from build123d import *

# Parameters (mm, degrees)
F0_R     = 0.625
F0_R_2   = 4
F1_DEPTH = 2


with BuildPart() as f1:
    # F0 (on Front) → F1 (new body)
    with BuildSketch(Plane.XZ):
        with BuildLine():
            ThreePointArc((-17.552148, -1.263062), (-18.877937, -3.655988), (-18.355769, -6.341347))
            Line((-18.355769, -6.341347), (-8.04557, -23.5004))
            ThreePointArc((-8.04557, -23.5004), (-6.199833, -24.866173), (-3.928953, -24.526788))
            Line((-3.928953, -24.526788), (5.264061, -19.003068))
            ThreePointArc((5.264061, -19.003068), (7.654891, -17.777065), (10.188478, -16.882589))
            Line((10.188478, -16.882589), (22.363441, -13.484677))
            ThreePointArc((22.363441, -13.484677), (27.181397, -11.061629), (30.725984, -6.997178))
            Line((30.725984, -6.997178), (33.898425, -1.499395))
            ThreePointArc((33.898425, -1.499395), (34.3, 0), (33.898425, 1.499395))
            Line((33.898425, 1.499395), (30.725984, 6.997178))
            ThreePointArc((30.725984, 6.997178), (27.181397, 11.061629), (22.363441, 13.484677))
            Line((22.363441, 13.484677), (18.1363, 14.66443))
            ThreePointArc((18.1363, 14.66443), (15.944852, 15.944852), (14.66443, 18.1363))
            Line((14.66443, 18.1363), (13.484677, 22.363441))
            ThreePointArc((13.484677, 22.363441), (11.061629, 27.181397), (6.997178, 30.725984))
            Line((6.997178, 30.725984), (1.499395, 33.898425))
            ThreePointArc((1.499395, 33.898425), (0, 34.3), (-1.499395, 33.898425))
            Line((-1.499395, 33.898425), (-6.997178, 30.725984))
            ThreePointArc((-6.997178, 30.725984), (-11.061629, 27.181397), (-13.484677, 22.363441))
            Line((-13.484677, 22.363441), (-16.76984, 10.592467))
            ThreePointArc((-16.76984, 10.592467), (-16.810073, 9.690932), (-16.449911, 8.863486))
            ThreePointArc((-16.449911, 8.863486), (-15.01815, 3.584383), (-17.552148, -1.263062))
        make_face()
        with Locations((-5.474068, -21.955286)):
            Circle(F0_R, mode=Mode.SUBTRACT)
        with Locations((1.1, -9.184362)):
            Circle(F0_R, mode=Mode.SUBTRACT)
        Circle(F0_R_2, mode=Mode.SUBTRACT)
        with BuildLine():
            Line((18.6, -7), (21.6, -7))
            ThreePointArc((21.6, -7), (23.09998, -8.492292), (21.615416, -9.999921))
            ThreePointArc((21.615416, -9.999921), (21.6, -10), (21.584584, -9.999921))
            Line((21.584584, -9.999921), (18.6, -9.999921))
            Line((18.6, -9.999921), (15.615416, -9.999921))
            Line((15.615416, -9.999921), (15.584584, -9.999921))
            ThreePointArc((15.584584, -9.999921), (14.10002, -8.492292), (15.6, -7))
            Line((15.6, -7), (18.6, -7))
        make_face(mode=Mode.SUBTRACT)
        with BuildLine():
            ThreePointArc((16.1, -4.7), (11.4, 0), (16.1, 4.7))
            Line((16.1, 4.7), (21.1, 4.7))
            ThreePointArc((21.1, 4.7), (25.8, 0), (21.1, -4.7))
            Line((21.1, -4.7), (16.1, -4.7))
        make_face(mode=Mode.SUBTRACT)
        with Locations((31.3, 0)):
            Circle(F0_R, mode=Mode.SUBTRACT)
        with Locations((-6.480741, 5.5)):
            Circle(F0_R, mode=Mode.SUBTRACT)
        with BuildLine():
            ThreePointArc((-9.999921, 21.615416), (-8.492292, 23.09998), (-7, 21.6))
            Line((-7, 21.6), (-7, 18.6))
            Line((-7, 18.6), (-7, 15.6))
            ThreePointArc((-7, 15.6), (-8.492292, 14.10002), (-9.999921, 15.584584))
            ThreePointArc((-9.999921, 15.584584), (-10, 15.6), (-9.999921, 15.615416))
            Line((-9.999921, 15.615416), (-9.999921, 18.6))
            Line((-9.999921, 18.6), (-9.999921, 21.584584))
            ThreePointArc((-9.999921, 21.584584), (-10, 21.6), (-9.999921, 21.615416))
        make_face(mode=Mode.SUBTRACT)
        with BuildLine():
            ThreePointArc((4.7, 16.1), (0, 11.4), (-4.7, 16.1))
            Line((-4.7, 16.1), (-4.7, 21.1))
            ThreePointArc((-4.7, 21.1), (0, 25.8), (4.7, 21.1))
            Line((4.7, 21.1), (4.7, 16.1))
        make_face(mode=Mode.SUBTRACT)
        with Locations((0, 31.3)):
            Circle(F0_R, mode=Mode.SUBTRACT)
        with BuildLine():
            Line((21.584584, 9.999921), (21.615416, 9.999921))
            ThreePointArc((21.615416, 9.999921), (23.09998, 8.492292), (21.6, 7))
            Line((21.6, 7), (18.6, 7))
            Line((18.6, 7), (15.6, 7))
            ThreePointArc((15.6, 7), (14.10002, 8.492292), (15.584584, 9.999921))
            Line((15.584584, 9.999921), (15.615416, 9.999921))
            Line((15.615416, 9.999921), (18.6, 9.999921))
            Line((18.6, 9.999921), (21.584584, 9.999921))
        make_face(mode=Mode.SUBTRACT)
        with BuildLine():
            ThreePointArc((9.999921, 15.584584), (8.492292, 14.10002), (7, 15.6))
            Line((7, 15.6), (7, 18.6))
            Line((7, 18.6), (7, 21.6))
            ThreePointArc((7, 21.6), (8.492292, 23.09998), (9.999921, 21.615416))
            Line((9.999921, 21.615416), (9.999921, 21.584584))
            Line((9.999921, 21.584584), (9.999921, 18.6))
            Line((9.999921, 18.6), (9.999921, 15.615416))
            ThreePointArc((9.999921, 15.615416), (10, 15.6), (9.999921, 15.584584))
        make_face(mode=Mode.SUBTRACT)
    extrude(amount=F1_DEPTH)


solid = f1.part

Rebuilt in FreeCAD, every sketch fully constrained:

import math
import FreeCAD as App
import Part
import Sketcher

V = App.Vector
Q = App.Units.Quantity

doc = App.newDocument("Part")
body = doc.addObject("PartDesign::Body", "Body")

# Sketch on XZ plane
sketch1 = body.newObject("Sketcher::SketchObject", "Sketch")
sketch1.AttachmentSupport = (doc.getObject("XZ_Plane"), [""])
sketch1.MapMode = "FlatFace"
sketch1.addGeometry(Part.ArcOfCircle(Part.Circle(V(-14.927, -4.281, 0), V(0, 0, 1), 4), math.radians(131), math.radians(211)), False)
sketch1.addGeometry(Part.LineSegment(V(-18.356, -6.341, 0), V(-8.046, -23.5, 0)), False)
sketch1.addGeometry(Part.ArcOfCircle(Part.Circle(V(-5.474, -21.955, 0), V(0, 0, 1), 3), math.radians(-149), math.radians(-59)), False)
sketch1.addGeometry(Part.LineSegment(V(-3.929, -24.527, 0), V(5.264, -19.003, 0)), False)
sketch1.addGeometry(Part.ArcOfCircle(Part.Circle(V(15.565, -36.146, 0), V(0, 0, 1), 20), math.radians(105.59), math.radians(121)), False)
sketch1.addGeometry(Part.LineSegment(V(10.188, -16.883, 0), V(22.363, -13.485, 0)), False)
sketch1.addGeometry(Part.ArcOfCircle(Part.Circle(V(18.6, 0, 0), V(0, 0, 1), 14), math.radians(-74), math.radians(-30)), False)
sketch1.addGeometry(Part.LineSegment(V(30.726, -6.997, 0), V(33.898, -1.499, 0)), False)
sketch1.addGeometry(Part.ArcOfCircle(Part.Circle(V(31.3, 0, 0), V(0, 0, 1), 3), math.radians(-30), math.radians(30)), False)
sketch1.addGeometry(Part.LineSegment(V(33.898, 1.499, 0), V(30.726, 6.997, 0)), False)
sketch1.addGeometry(Part.ArcOfCircle(Part.Circle(V(18.6, 0, 0), V(0, 0, 1), 14), math.radians(30), math.radians(74)), False)
sketch1.addGeometry(Part.LineSegment(V(22.363, 13.485, 0), V(18.136, 14.664, 0)), False)
sketch1.addGeometry(Part.ArcOfCircle(Part.Circle(V(19.48, 19.48, 0), V(0, 0, 1), 5), math.radians(-164), math.radians(-106)), False)
sketch1.addGeometry(Part.LineSegment(V(14.664, 18.136, 0), V(13.485, 22.363, 0)), False)
sketch1.addGeometry(Part.ArcOfCircle(Part.Circle(V(0, 18.6, 0), V(0, 0, 1), 14), math.radians(16), math.radians(60)), False)
sketch1.addGeometry(Part.LineSegment(V(6.997, 30.726, 0), V(1.499, 33.898, 0)), False)
sketch1.addGeometry(Part.ArcOfCircle(Part.Circle(V(0, 31.3, 0), V(0, 0, 1), 3), math.radians(60), math.radians(120)), False)
sketch1.addGeometry(Part.LineSegment(V(-1.499, 33.898, 0), V(-6.997, 30.726, 0)), False)
sketch1.addGeometry(Part.ArcOfCircle(Part.Circle(V(0, 18.6, 0), V(0, 0, 1), 14), math.radians(120), math.radians(164)), False)
sketch1.addGeometry(Part.LineSegment(V(-13.485, 22.363, 0), V(-16.77, 10.592, 0)), False)
sketch1.addGeometry(Part.ArcOfCircle(Part.Circle(V(-14.843, 10.055, 0), V(0, 0, 1), 2), math.radians(164), math.radians(217)), False)
sketch1.addGeometry(Part.ArcOfCircle(Part.Circle(V(-22.474, 4.396, 0), V(0, 0, 1), 7.5), math.radians(-49), math.radians(37)), False)
sketch1.addGeometry(Part.Circle(V(-5.474, -21.955, 0), V(0, 0, 1), 0.625), False)
sketch1.addGeometry(Part.Circle(V(1.1, -9.184, 0), V(0, 0, 1), 0.625), False)
sketch1.addGeometry(Part.Circle(V(0, 0, 0), V(0, 0, 1), 4), False)
sketch1.addGeometry(Part.LineSegment(V(15.6, -7, 0), V(21.6, -7, 0)), False)
sketch1.addGeometry(Part.ArcOfCircle(Part.Circle(V(21.6, -8.5, 0), V(0, 0, 1), 1.5), math.radians(-89), math.radians(90)), False)
sketch1.addGeometry(Part.ArcOfCircle(Part.Circle(V(21.6, -8.496, 0), V(0, 0, 1), 1.504), math.radians(-90.59), math.radians(-89.41)), False)
sketch1.addGeometry(Part.LineSegment(V(21.585, -10, 0), V(15.585, -10, 0)), False)
sketch1.addGeometry(Part.ArcOfCircle(Part.Circle(V(15.6, -8.5, 0), V(0, 0, 1), 1.5), math.radians(90), math.radians(269)), False)
sketch1.addGeometry(Part.LineSegment(V(21.1, -4.7, 0), V(16.1, -4.7, 0)), False)
sketch1.addGeometry(Part.ArcOfCircle(Part.Circle(V(16.1, 0, 0), V(0, 0, 1), 4.7), math.radians(90), math.radians(270)), False)
sketch1.addGeometry(Part.LineSegment(V(16.1, 4.7, 0), V(21.1, 4.7, 0)), False)
sketch1.addGeometry(Part.ArcOfCircle(Part.Circle(V(21.1, 0, 0), V(0, 0, 1), 4.7), math.radians(-90), math.radians(90)), False)
sketch1.addGeometry(Part.Circle(V(31.3, 0, 0), V(0, 0, 1), 0.625), False)
sketch1.addGeometry(Part.Circle(V(-6.481, 5.5, 0), V(0, 0, 1), 0.625), False)
sketch1.addGeometry(Part.ArcOfCircle(Part.Circle(V(-8.496, 21.6, 0), V(0, 0, 1), 1.504), math.radians(179.41), math.radians(180.59)), False)
sketch1.addGeometry(Part.ArcOfCircle(Part.Circle(V(-8.5, 21.6, 0), V(0, 0, 1), 1.5), math.radians(0), math.radians(179)), False)
sketch1.addGeometry(Part.LineSegment(V(-7, 21.6, 0), V(-7, 15.6, 0)), False)
sketch1.addGeometry(Part.ArcOfCircle(Part.Circle(V(-8.5, 15.6, 0), V(0, 0, 1), 1.5), math.radians(-179), math.radians(0)), False)
sketch1.addGeometry(Part.ArcOfCircle(Part.Circle(V(-8.496, 15.6, 0), V(0, 0, 1), 1.504), math.radians(179.41), math.radians(180.59)), False)
sketch1.addGeometry(Part.LineSegment(V(-10, 15.615, 0), V(-10, 21.585, 0)), False)
sketch1.addGeometry(Part.LineSegment(V(4.7, 21.1, 0), V(4.7, 16.1, 0)), False)
sketch1.addGeometry(Part.ArcOfCircle(Part.Circle(V(0, 16.1, 0), V(0, 0, 1), 4.7), math.radians(180), math.radians(360)), False)
sketch1.addGeometry(Part.LineSegment(V(-4.7, 16.1, 0), V(-4.7, 21.1, 0)), False)
sketch1.addGeometry(Part.ArcOfCircle(Part.Circle(V(0, 21.1, 0), V(0, 0, 1), 4.7), math.radians(0), math.radians(180)), False)
sketch1.addGeometry(Part.Circle(V(0, 31.3, 0), V(0, 0, 1), 0.625), False)
sketch1.addGeometry(Part.ArcOfCircle(Part.Circle(V(8.496, 15.6, 0), V(0, 0, 1), 1.504), math.radians(-0.59), math.radians(0.59)), False)
sketch1.addGeometry(Part.ArcOfCircle(Part.Circle(V(8.5, 15.6, 0), V(0, 0, 1), 1.5), math.radians(-180), math.radians(-1)), False)
sketch1.addGeometry(Part.LineSegment(V(7, 15.6, 0), V(7, 21.6, 0)), False)
sketch1.addGeometry(Part.ArcOfCircle(Part.Circle(V(8.5, 21.6, 0), V(0, 0, 1), 1.5), math.radians(1), math.radians(180)), False)
sketch1.addGeometry(Part.LineSegment(V(10, 21.615, 0), V(10, 15.615, 0)), False)
sketch1.addGeometry(Part.LineSegment(V(15.585, 10, 0), V(21.615, 10, 0)), False)
sketch1.addGeometry(Part.ArcOfCircle(Part.Circle(V(21.6, 8.5, 0), V(0, 0, 1), 1.5), math.radians(-90), math.radians(89)), False)
sketch1.addGeometry(Part.LineSegment(V(21.6, 7, 0), V(15.6, 7, 0)), False)
sketch1.addGeometry(Part.ArcOfCircle(Part.Circle(V(15.6, 8.5, 0), V(0, 0, 1), 1.5), math.radians(91), math.radians(270)), False)
sketch1.addConstraint(Sketcher.Constraint("Tangent", 0, 2, 1, 1))
sketch1.addConstraint(Sketcher.Constraint("Tangent", 1, 2, 2, 1))
sketch1.addConstraint(Sketcher.Constraint("Tangent", 2, 2, 3, 1))
sketch1.addConstraint(Sketcher.Constraint("Tangent", 3, 2, 4, 2))
sketch1.addConstraint(Sketcher.Constraint("Tangent", 4, 1, 5, 1))
sketch1.addConstraint(Sketcher.Constraint("Tangent", 5, 2, 6, 1))
sketch1.addConstraint(Sketcher.Constraint("Tangent", 6, 2, 7, 1))
sketch1.addConstraint(Sketcher.Constraint("Tangent", 7, 2, 8, 1))
sketch1.addConstraint(Sketcher.Constraint("Tangent", 8, 2, 9, 1))
sketch1.addConstraint(Sketcher.Constraint("Tangent", 9, 2, 10, 1))
sketch1.addConstraint(Sketcher.Constraint("Tangent", 10, 2, 11, 1))
sketch1.addConstraint(Sketcher.Constraint("Tangent", 11, 2, 12, 2))
sketch1.addConstraint(Sketcher.Constraint("Tangent", 12, 1, 13, 1))
sketch1.addConstraint(Sketcher.Constraint("Tangent", 13, 2, 14, 1))
sketch1.addConstraint(Sketcher.Constraint("Tangent", 14, 2, 15, 1))
sketch1.addConstraint(Sketcher.Constraint("Tangent", 15, 2, 16, 1))
sketch1.addConstraint(Sketcher.Constraint("Tangent", 16, 2, 17, 1))
sketch1.addConstraint(Sketcher.Constraint("Tangent", 17, 2, 18, 1))
sketch1.addConstraint(Sketcher.Constraint("Tangent", 18, 2, 19, 1))
sketch1.addConstraint(Sketcher.Constraint("Tangent", 19, 2, 20, 1))
sketch1.addConstraint(Sketcher.Constraint("Tangent", 20, 2, 21, 2))
sketch1.addConstraint(Sketcher.Constraint("Tangent", 21, 1, 0, 1))
sketch1.addConstraint(Sketcher.Constraint("Tangent", 25, 2, 26, 2))
sketch1.addConstraint(Sketcher.Constraint("Coincident", 26, 1, 27, 2))
sketch1.addConstraint(Sketcher.Constraint("Coincident", 27, 1, 28, 1))
sketch1.addConstraint(Sketcher.Constraint("Coincident", 28, 2, 29, 2))
sketch1.addConstraint(Sketcher.Constraint("Tangent", 29, 1, 25, 1))
sketch1.addConstraint(Sketcher.Constraint("Tangent", 30, 2, 31, 2))
sketch1.addConstraint(Sketcher.Constraint("Tangent", 31, 1, 32, 1))
sketch1.addConstraint(Sketcher.Constraint("Tangent", 32, 2, 33, 2))
sketch1.addConstraint(Sketcher.Constraint("Tangent", 33, 1, 30, 1))
sketch1.addConstraint(Sketcher.Constraint("Coincident", 36, 1, 37, 2))
sketch1.addConstraint(Sketcher.Constraint("Tangent", 37, 1, 38, 1))
sketch1.addConstraint(Sketcher.Constraint("Tangent", 38, 2, 39, 2))
sketch1.addConstraint(Sketcher.Constraint("Coincident", 39, 1, 40, 2))
sketch1.addConstraint(Sketcher.Constraint("Coincident", 40, 1, 41, 1))
sketch1.addConstraint(Sketcher.Constraint("Coincident", 41, 2, 36, 2))
sketch1.addConstraint(Sketcher.Constraint("Tangent", 42, 2, 43, 2))
sketch1.addConstraint(Sketcher.Constraint("Tangent", 43, 1, 44, 1))
sketch1.addConstraint(Sketcher.Constraint("Tangent", 44, 2, 45, 2))
sketch1.addConstraint(Sketcher.Constraint("Tangent", 45, 1, 42, 1))
sketch1.addConstraint(Sketcher.Constraint("Coincident", 47, 1, 48, 2))
sketch1.addConstraint(Sketcher.Constraint("Tangent", 48, 1, 49, 1))
sketch1.addConstraint(Sketcher.Constraint("Tangent", 49, 2, 50, 2))
sketch1.addConstraint(Sketcher.Constraint("Coincident", 50, 1, 51, 1))
sketch1.addConstraint(Sketcher.Constraint("Coincident", 51, 2, 47, 2))
sketch1.addConstraint(Sketcher.Constraint("Coincident", 52, 2, 53, 2))
sketch1.addConstraint(Sketcher.Constraint("Tangent", 53, 1, 54, 1))
sketch1.addConstraint(Sketcher.Constraint("Tangent", 54, 2, 55, 2))
sketch1.addConstraint(Sketcher.Constraint("Coincident", 55, 1, 52, 1))
sketch1.addConstraint(Sketcher.Constraint("Horizontal", 25))
sketch1.addConstraint(Sketcher.Constraint("Horizontal", 28))
sketch1.addConstraint(Sketcher.Constraint("Horizontal", 30))
sketch1.addConstraint(Sketcher.Constraint("Horizontal", 32))
sketch1.addConstraint(Sketcher.Constraint("Vertical", 38))
sketch1.addConstraint(Sketcher.Constraint("Vertical", 41))
sketch1.addConstraint(Sketcher.Constraint("Vertical", 42))
sketch1.addConstraint(Sketcher.Constraint("Vertical", 44))
sketch1.addConstraint(Sketcher.Constraint("Vertical", 49))
sketch1.addConstraint(Sketcher.Constraint("Vertical", 51))
sketch1.addConstraint(Sketcher.Constraint("Horizontal", 52))
sketch1.addConstraint(Sketcher.Constraint("Horizontal", 54))
sketch1.addConstraint(Sketcher.Constraint("Coincident", 24, 3, -1, 1))
sketch1.addConstraint(Sketcher.Constraint("Coincident", 22, 3, 2, 3))
sketch1.addConstraint(Sketcher.Constraint("Coincident", 34, 3, 8, 3))
sketch1.addConstraint(Sketcher.Constraint("Coincident", 46, 3, 16, 3))
sketch1.addConstraint(Sketcher.Constraint("Equal", 6, 10))
sketch1.addConstraint(Sketcher.Constraint("Equal", 10, 14))
sketch1.addConstraint(Sketcher.Constraint("Equal", 8, 16))
sketch1.addConstraint(Sketcher.Constraint("Equal", 14, 18))
sketch1.addConstraint(Sketcher.Constraint("Equal", 22, 23))
sketch1.addConstraint(Sketcher.Constraint("Equal", 0, 24))
sketch1.addConstraint(Sketcher.Constraint("Equal", 26, 29))
sketch1.addConstraint(Sketcher.Constraint("Equal", 23, 34))
sketch1.addConstraint(Sketcher.Constraint("Equal", 34, 35))
sketch1.addConstraint(Sketcher.Constraint("Equal", 27, 36))
sketch1.addConstraint(Sketcher.Constraint("Equal", 29, 37))
sketch1.addConstraint(Sketcher.Constraint("Equal", 37, 39))
sketch1.addConstraint(Sketcher.Constraint("Equal", 36, 40))
sketch1.addConstraint(Sketcher.Constraint("Equal", 33, 43))
sketch1.addConstraint(Sketcher.Constraint("Equal", 35, 46))
sketch1.addConstraint(Sketcher.Constraint("Equal", 40, 47))
sketch1.addConstraint(Sketcher.Constraint("Equal", 39, 48))
sketch1.addConstraint(Sketcher.Constraint("Equal", 48, 50))
sketch1.addConstraint(Sketcher.Constraint("Equal", 50, 53))
sketch1.addConstraint(Sketcher.Constraint("Equal", 53, 55))
sketch1.addConstraint(Sketcher.Constraint("Symmetric", 14, 3, 18, 3, -2))
sketch1.addConstraint(Sketcher.Constraint("Symmetric", 40, 3, 47, 3, -2))
sketch1.addConstraint(Sketcher.Constraint("Symmetric", 39, 3, 48, 3, -2))
sketch1.addConstraint(Sketcher.Constraint("Symmetric", 36, 1, 50, 1, -2))
sketch1.addConstraint(Sketcher.Constraint("Symmetric", 6, 3, 10, 3, -1))
sketch1.addConstraint(Sketcher.Constraint("Symmetric", 26, 3, 53, 3, -1))
sketch1.addConstraint(Sketcher.Constraint("Symmetric", 28, 2, 55, 1, -1))
sketch1.addConstraint(Sketcher.Constraint("PointOnObject", 8, 3, -1))
sketch1.addConstraint(Sketcher.Constraint("PointOnObject", 16, 3, -2))
sketch1.addConstraint(Sketcher.Constraint("PointOnObject", 31, 3, -1))
sketch1.addConstraint(Sketcher.Constraint("PointOnObject", 43, 3, -2))
sketch1.addConstraint(Sketcher.Constraint("Perpendicular", 1, 3))
sketch1.addConstraint(Sketcher.Constraint("Perpendicular", 5, 13))
sketch1.addConstraint(Sketcher.Constraint("Perpendicular", 7, 15))
sketch1.addConstraint(Sketcher.Constraint("Perpendicular", 11, 19))
sketch1.addConstraint(Sketcher.Constraint("Horizontal", 36, 3, 37, 3))
sketch1.addConstraint(Sketcher.Constraint("Horizontal", 39, 3, 40, 3))
sketch1.addConstraint(Sketcher.Constraint("Horizontal", 13, 2, 18, 2))
sketch1.addConstraint(Sketcher.Constraint("Horizontal", 26, 1, 27, 1))
sketch1.addConstraint(Sketcher.Constraint("Horizontal", 40, 1, 51, 2))
sketch1.addConstraint(Sketcher.Constraint("Vertical", 26, 3, 27, 3))
sketch1.addConstraint(Sketcher.Constraint("Vertical", 36, 1, 39, 1))
sketch1.addConstraint(Sketcher.Constraint("Equal", 54, 38))
sketch1.addConstraint(Sketcher.Constraint("Equal", 32, 42))
sketch1.addConstraint(Sketcher.Constraint("Equal", 11, 13))
sketch1.addConstraint(Sketcher.Constraint("Equal", 9, 15))
sketch1.addConstraint(Sketcher.Constraint("Diameter", 24, 8.0))
sketch1.addConstraint(Sketcher.Constraint("Radius", 2, 3.000002))
sketch1.addConstraint(Sketcher.Constraint("Radius", 12, 4.999999))
sketch1.addConstraint(Sketcher.Constraint("Radius", 20, 1.999999))
sketch1.addConstraint(Sketcher.Constraint("Radius", 21, 7.500001))
sketch1.addConstraint(Sketcher.Constraint("Radius", 26, 1.5))
sketch1.addConstraint(Sketcher.Constraint("Radius", 31, 4.7))
sketch1.addConstraint(Sketcher.Constraint("Diameter", 22, 1.25))
sketch1.addConstraint(Sketcher.Constraint("DistanceX", 25, 1, 25, 2, 6.0))
sketch1.addConstraint(Sketcher.Constraint("DistanceX", 30, 2, 30, 1, 5.0))
sketch1.addConstraint(Sketcher.Constraint("Angle", 1, Q("-59.000001 deg")))
sketch1.addConstraint(Sketcher.Constraint("DistanceY", 25, 2, -1, 1, 7.0))
sketch1.addConstraint(Sketcher.Constraint("DistanceX", 37, 1, -1, 1, 7.0))
sketch1.addConstraint(Sketcher.Constraint("DistanceX", -1, 1, 23, 3, 1.1))
sketch1.addConstraint(Sketcher.Constraint("DistanceX", -1, 1, 26, 3, 21.6))
sketch1.addConstraint(Sketcher.Constraint("DistanceX", -1, 1, 31, 3, 16.1))
sketch1.addConstraint(Sketcher.Constraint("DistanceX", -1, 1, 34, 3, 31.3))
sketch1.addConstraint(Sketcher.Constraint("DistanceY", -1, 1, 35, 3, 5.5))
sketch1.addConstraint(Sketcher.Constraint("DistanceY", -1, 1, 36, 3, 21.6))
sketch1.addConstraint(Sketcher.Constraint("DistanceY", -1, 1, 43, 3, 16.1))
sketch1.addConstraint(Sketcher.Constraint("Radius", 4, 20.000049))
sketch1.addConstraint(Sketcher.Constraint("Radius", 6, 13.999993))
sketch1.addConstraint(Sketcher.Constraint("Radius", 8, 2.999997))
sketch1.addConstraint(Sketcher.Constraint("Radius", 27, 1.504173))
sketch1.addConstraint(Sketcher.Constraint("DistanceY", 1, 2, -1, 1, 23.5004))
sketch1.addConstraint(Sketcher.Constraint("DistanceX", -1, 1, 11, 2, 18.1363))
sketch1.addConstraint(Sketcher.Constraint("Distance", 7, 6.34744))
sketch1.addConstraint(Sketcher.Constraint("DistanceX", 52, 1, 52, 2, 6.030832))
sketch1.addConstraint(Sketcher.Constraint("DistanceY", 41, 1, 41, 2, 5.969168))
sketch1.addConstraint(Sketcher.Constraint("DistanceX", 20, 3, -1, 1, 14.843458))
sketch1.addConstraint(Sketcher.Constraint("DistanceX", 35, 3, -1, 1, 6.480741))
sketch1.addConstraint(Sketcher.Constraint("DistanceX", 0, 2, -1, 1, 18.355769))
sketch1.addConstraint(Sketcher.Constraint("DistanceX", 1, 2, -1, 1, 8.04557))
sketch1.addConstraint(Sketcher.Constraint("DistanceX", -1, 1, 3, 2, 5.264061))
sketch1.addConstraint(Sketcher.Constraint("DistanceY", 23, 3, -1, 1, 9.184362))
pad1 = body.newObject("PartDesign::Pad", "Pad")
pad1.Profile = sketch1
pad1.Length = 2

doc.recompute()
